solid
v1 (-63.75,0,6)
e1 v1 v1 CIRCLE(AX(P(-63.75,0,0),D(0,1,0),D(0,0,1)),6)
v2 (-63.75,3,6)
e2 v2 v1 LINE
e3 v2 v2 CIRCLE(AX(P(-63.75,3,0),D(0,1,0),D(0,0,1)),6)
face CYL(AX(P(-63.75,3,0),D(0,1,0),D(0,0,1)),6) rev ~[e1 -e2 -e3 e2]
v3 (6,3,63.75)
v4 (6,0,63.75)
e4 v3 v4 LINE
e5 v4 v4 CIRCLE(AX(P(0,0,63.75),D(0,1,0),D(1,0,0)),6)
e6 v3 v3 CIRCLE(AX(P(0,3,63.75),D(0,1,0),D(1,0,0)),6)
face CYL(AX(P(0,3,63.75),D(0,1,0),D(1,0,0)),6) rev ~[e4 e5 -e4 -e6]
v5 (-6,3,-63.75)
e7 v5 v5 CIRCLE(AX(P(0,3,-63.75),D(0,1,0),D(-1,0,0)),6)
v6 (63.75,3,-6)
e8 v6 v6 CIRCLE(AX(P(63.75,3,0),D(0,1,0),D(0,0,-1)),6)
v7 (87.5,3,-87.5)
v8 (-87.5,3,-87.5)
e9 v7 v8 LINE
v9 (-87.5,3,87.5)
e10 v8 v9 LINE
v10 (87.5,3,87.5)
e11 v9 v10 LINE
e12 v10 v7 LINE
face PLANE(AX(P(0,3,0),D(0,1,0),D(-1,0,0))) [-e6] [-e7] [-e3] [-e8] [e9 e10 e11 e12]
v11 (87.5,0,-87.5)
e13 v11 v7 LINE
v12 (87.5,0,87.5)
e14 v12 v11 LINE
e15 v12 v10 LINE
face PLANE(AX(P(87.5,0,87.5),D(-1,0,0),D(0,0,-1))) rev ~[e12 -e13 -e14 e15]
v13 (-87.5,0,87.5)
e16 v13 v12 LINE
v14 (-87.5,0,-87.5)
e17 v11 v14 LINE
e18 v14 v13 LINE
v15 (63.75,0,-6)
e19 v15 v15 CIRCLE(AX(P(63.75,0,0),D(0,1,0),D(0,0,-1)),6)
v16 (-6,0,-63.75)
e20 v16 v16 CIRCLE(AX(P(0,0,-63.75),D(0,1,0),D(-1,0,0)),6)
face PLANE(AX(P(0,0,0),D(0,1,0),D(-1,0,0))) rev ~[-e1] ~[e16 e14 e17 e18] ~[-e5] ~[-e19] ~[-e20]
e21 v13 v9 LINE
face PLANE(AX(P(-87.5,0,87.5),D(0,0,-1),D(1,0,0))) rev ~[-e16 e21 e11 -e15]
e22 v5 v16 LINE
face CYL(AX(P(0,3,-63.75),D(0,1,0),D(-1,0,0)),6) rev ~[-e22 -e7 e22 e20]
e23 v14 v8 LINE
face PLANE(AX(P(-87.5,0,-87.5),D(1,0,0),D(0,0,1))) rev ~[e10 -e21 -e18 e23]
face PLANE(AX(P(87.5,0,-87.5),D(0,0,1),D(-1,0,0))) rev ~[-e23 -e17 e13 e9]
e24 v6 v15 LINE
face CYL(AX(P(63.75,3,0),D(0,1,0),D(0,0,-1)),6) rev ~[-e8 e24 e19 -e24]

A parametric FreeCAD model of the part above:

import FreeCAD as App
import Part
import Sketcher

V = App.Vector


def add_polygon(sketch, points):
    """Adds a closed chain of lines whose ends are joined by coincident constraints."""
    first, n = sketch.GeometryCount, len(points)
    for a, b in zip(points, points[1:] + points[:1]):
        sketch.addGeometry(Part.LineSegment(App.Vector(*a, 0), App.Vector(*b, 0)), False)
    for i in range(n):
        sketch.addConstraint(Sketcher.Constraint("Coincident", first + i, 2, first + (i + 1) % n, 1))

doc = App.newDocument("Part")
params = doc.addObject("Spreadsheet::Sheet", "Params")
for row, (alias, value) in enumerate([
    ("sketch1_width", "175 mm"),
    ("pad1_length", "3 mm"),
    ("sketch2_diameter", "12 mm"),
    ("pocket1_length", "10 mm"),
], start=1):
    params.set(f"A{row}", alias)
    params.set(f"B{row}", "=" + value)
    params.setAlias(f"B{row}", alias)

body = doc.addObject("PartDesign::Body", "Body")

# Sketch on XZ plane
sketch1 = body.newObject("Sketcher::SketchObject", "Sketch")
sketch1.AttachmentSupport = (doc.getObject("XZ_Plane"), [""])
sketch1.MapMode = "FlatFace"
add_polygon(sketch1, [(-88, -88), (-88, 88), (88, 88), (88, -88)])  # lines 0-3
sketch1.addConstraint([
    Sketcher.Constraint("Vertical", 0),
    Sketcher.Constraint("Horizontal", 1),
    Sketcher.Constraint("Vertical", 2),
    Sketcher.Constraint("Horizontal", 3),
    Sketcher.Constraint("Symmetric", 0, 2, 2, 2, -1, 1),
    Sketcher.Constraint("Equal", 3, 0),
    Sketcher.Constraint("DistanceX", 1, 1, 1, 2, 175.0),
])
sketch1.setExpression("Constraints[10]", "Params.sketch1_width")
pad1 = body.newObject("PartDesign::Pad", "Pad")
pad1.Profile = sketch1
pad1.setExpression("Length", "Params.pad1_length")
pad1.Reversed = True

# Sketch on XZ plane
sketch2 = body.newObject("Sketcher::SketchObject", "Sketch001")
sketch2.AttachmentSupport = (doc.getObject("XZ_Plane"), [""])
sketch2.MapMode = "FlatFace"
sketch2.AttachmentOffset = App.Placement(V(0, 0, -3), App.Rotation())
sketch2.addGeometry(Part.Circle(V(0, 64, 0), V(0, 0, 1), 6), False)
sketch2.addConstraint([
    Sketcher.Constraint("PointOnObject", 0, 3, -2),
    Sketcher.Constraint("Diameter", 0, 12.0),
    Sketcher.Constraint("DistanceY", -1, 1, 0, 3, 63.75),
])
sketch2.setExpression("Constraints[1]", "Params.sketch2_diameter")
pocket1 = body.newObject("PartDesign::Pocket", "Pocket")
pocket1.Profile = sketch2
pocket1.setExpression("Length", "Params.pocket1_length")
pocket1.Reversed = True
doc.recompute()

polarpattern = body.newObject("PartDesign::PolarPattern", "PolarPattern")
polarpattern.Originals = [pocket1]
polarpattern.Axis = (doc.getObject("Y_Axis"), [""])
polarpattern.Angle = 360
polarpattern.Occurrences = 4
body.Tip = polarpattern

doc.recompute()
